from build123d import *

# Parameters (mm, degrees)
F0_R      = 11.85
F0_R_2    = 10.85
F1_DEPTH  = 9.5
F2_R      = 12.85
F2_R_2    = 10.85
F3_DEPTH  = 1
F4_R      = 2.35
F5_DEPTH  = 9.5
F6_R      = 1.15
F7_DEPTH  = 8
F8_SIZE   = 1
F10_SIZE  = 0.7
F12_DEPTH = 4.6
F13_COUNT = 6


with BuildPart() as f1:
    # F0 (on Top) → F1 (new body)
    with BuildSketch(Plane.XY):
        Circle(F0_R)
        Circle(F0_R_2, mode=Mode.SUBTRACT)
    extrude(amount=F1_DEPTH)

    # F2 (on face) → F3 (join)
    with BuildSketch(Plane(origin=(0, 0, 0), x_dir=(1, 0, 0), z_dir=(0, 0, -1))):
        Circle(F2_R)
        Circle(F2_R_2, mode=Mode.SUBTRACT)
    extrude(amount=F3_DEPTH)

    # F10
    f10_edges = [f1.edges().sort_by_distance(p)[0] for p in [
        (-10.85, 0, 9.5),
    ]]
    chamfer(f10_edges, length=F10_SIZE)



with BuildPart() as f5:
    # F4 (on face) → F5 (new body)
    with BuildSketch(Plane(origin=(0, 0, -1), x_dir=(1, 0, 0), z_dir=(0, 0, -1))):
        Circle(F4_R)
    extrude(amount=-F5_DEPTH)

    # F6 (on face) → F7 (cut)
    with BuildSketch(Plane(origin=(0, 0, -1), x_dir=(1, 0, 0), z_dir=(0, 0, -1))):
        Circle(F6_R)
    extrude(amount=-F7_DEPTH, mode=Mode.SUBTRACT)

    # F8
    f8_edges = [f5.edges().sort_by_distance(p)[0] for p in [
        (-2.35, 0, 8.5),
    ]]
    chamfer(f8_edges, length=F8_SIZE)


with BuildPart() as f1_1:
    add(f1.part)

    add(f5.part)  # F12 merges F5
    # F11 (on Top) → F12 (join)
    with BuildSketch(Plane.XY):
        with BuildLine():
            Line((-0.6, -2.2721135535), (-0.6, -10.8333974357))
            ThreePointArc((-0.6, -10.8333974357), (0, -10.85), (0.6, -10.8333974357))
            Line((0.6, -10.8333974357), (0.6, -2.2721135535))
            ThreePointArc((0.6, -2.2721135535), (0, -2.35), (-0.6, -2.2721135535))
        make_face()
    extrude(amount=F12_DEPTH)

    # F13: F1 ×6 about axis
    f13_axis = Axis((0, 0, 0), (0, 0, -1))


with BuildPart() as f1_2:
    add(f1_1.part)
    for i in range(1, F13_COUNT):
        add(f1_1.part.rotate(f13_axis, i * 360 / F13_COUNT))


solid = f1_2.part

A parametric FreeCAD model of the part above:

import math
import FreeCAD as App
import Part
import Sketcher
from FreeCAD import Vector
Q = App.Units.Quantity


def edges_at(feature, points):
    """Names of the edges that pass closest to the given points."""
    edges = feature.Shape.Edges
    near = lambda p: min(range(len(edges)), key=lambda i: edges[i].distToShape(Part.Vertex(*p))[0])
    return sorted({f"Edge{near(p) + 1}" for p in points})

doc = App.newDocument("Part")
body = doc.addObject("PartDesign::Body", "Body")

# Sketch on XY plane
sketch1 = body.newObject("Sketcher::SketchObject", "Sketch")
sketch1.AttachmentSupport = (doc.getObject("XY_Plane"), [""])
sketch1.MapMode = "FlatFace"
sketch1.addGeometry([
    Part.Circle(Vector(0, 0, 0), Vector(0, 0, 1), 11.85),
    Part.Circle(Vector(0, 0, 0), Vector(0, 0, 1), 10.85),
], False)
sketch1.addConstraint([
    Sketcher.Constraint("Coincident", 0, 3, -1, 1),
    Sketcher.Constraint("Coincident", 1, 3, -1, 1),
    Sketcher.Constraint("Diameter", 0, Q("23.7 mm")),
    Sketcher.Constraint("Diameter", 1, Q("21.7 mm")),
])
pad1 = body.newObject("PartDesign::Pad", "Pad")
pad1.Profile = sketch1
pad1.Length = 9.5

# Sketch on XY plane
sketch2 = body.newObject("Sketcher::SketchObject", "Sketch001")
sketch2.AttachmentSupport = (doc.getObject("XY_Plane"), [""])
sketch2.MapMode = "FlatFace"
sketch2.addGeometry([
    Part.Circle(Vector(0, 0, 0), Vector(0, 0, 1), 12.85),
    Part.Circle(Vector(0, 0, 0), Vector(0, 0, 1), 10.85),
], False)
sketch2.addConstraint([
    Sketcher.Constraint("Coincident", 0, 3, -1, 1),
    Sketcher.Constraint("Coincident", 1, 3, -1, 1),
    Sketcher.Constraint("Diameter", 0, Q("25.7 mm")),
    Sketcher.Constraint("Diameter", 1, Q("21.7 mm")),
])
pad2 = body.newObject("PartDesign::Pad", "Pad001")
pad2.Profile = sketch2
pad2.Length = 1
pad2.Reversed = True
doc.recompute()

chamfer = body.newObject("PartDesign::Chamfer", "Chamfer")
chamfer.Base = (pad2, edges_at(pad2, [(-10.85, 0, 9.5)]))
chamfer.Size = 0.7
body2 = doc.addObject("PartDesign::Body", "Body001")

# Sketch on XY plane
sketch3 = body2.newObject("Sketcher::SketchObject", "Sketch002")
sketch3.AttachmentSupport = (doc.getObject("XY_Plane001"), [""])
sketch3.MapMode = "FlatFace"
sketch3.AttachmentOffset = App.Placement(Vector(0, 0, -1), App.Rotation())
sketch3.addGeometry(Part.Circle(Vector(0, 0, 0), Vector(0, 0, 1), 2.35), False)
sketch3.addConstraint([
    Sketcher.Constraint("Coincident", 0, 3, -1, 1),
    Sketcher.Constraint("Diameter", 0, Q("4.7 mm")),
])
pad3 = body2.newObject("PartDesign::Pad", "Pad002")
pad3.Profile = sketch3
pad3.Length = 9.5

# Sketch on XY plane
sketch4 = body2.newObject("Sketcher::SketchObject", "Sketch003")
sketch4.AttachmentSupport = (doc.getObject("XY_Plane001"), [""])
sketch4.MapMode = "FlatFace"
sketch4.AttachmentOffset = App.Placement(Vector(0, 0, -1), App.Rotation())
sketch4.addGeometry(Part.Circle(Vector(0, 0, 0), Vector(0, 0, 1), 1.15), False)
sketch4.addConstraint([
    Sketcher.Constraint("Coincident", 0, 3, -1, 1),
    Sketcher.Constraint("Diameter", 0, Q("2.3 mm")),
])
pocket1 = body2.newObject("PartDesign::Pocket", "Pocket")
pocket1.Profile = sketch4
pocket1.Length = 8
pocket1.Reversed = True
doc.recompute()

chamfer2 = body2.newObject("PartDesign::Chamfer", "Chamfer001")
chamfer2.Base = (pocket1, edges_at(pocket1, [(-2.35, 0, 8.5)]))
chamfer2.Size = 1
body.AllowCompound = True
doc.recompute()

boolean = body.newObject("PartDesign::Boolean", "Boolean")
boolean.Type = "Fuse"
boolean.addObjects([body2])

# Sketch on XY plane
sketch5 = body.newObject("Sketcher::SketchObject", "Sketch004")
sketch5.AttachmentSupport = (doc.getObject("XY_Plane"), [""])
sketch5.MapMode = "FlatFace"
sketch5.addGeometry([
    Part.LineSegment(Vector(-0.6, -2.272114, 0), Vector(-0.6, -10.833397, 0)),
    Part.ArcOfCircle(Part.Circle(Vector(0, 0, 0), Vector(0, 0, 1), 10.85), math.radians(-93.170047), math.radians(-86.829953)),
    Part.LineSegment(Vector(0.6, -10.833397, 0), Vector(0.6, -2.272114, 0)),
    Part.ArcOfCircle(Part.Circle(Vector(0, 0, 0), Vector(0, 0, 1), 2.35), math.radians(-104.792497), math.radians(-75.207503)),
], False)
sketch5.addConstraint([
    Sketcher.Constraint("Coincident", 0, 2, 1, 1),
    Sketcher.Constraint("Coincident", 1, 2, 2, 1),
    Sketcher.Constraint("Coincident", 2, 2, 3, 2),
    Sketcher.Constraint("Coincident", 3, 1, 0, 1),
    Sketcher.Constraint("Vertical", 0),
    Sketcher.Constraint("Vertical", 2),
    Sketcher.Constraint("Coincident", 1, 3, -1, 1),
    Sketcher.Constraint("Coincident", 3, 3, -1, 1),
    Sketcher.Constraint("Horizontal", 0, 2, 1, 2),
    Sketcher.Constraint("Radius", 1, Q("10.85 mm")),
    Sketcher.Constraint("Radius", 3, Q("2.35 mm")),
    Sketcher.Constraint("DistanceX", 0, 2, -1, 1, Q("0.6 mm")),
])
pad4 = body.newObject("PartDesign::Pad", "Pad003")
pad4.Profile = sketch5
pad4.Length = 4.6
body3 = doc.addObject("PartDesign::Body", "Body002")
doc.recompute()

body3.BaseFeature = body
doc.recompute()

body4 = doc.addObject("PartDesign::Body", "Body003")
body4.BaseFeature = body
body4.Placement = App.Placement(Vector(0, 0, 0), App.Rotation(Vector(0, 0, -1), 60))
boolean2 = body3.newObject("PartDesign::Boolean", "Boolean001")
boolean2.Type = "Fuse"
boolean2.addObjects([body4])
doc.recompute()

body5 = doc.addObject("PartDesign::Body", "Body004")
body5.BaseFeature = body
body5.Placement = App.Placement(Vector(0, 0, 0), App.Rotation(Vector(0, 0, -1), 120))
boolean3 = body3.newObject("PartDesign::Boolean", "Boolean002")
boolean3.Type = "Fuse"
boolean3.addObjects([body5])
doc.recompute()

body6 = doc.addObject("PartDesign::Body", "Body005")
body6.BaseFeature = body
body6.Placement = App.Placement(Vector(0, 0, 0), App.Rotation(Vector(0, 0, -1), 180))
boolean4 = body3.newObject("PartDesign::Boolean", "Boolean003")
boolean4.Type = "Fuse"
boolean4.addObjects([body6])
doc.recompute()

body7 = doc.addObject("PartDesign::Body", "Body006")
body7.BaseFeature = body
body7.Placement = App.Placement(Vector(0, 0, 0), App.Rotation(Vector(0, 0, -1), 240))
boolean5 = body3.newObject("PartDesign::Boolean", "Boolean004")
boolean5.Type = "Fuse"
boolean5.addObjects([body7])
doc.recompute()

body.Placement = App.Placement(Vector(0, 0, 0), App.Rotation(Vector(0, 0, -1), 300))
boolean6 = body3.newObject("PartDesign::Boolean", "Boolean005")
boolean6.Type = "Fuse"
boolean6.addObjects([body])

doc.recompute()
